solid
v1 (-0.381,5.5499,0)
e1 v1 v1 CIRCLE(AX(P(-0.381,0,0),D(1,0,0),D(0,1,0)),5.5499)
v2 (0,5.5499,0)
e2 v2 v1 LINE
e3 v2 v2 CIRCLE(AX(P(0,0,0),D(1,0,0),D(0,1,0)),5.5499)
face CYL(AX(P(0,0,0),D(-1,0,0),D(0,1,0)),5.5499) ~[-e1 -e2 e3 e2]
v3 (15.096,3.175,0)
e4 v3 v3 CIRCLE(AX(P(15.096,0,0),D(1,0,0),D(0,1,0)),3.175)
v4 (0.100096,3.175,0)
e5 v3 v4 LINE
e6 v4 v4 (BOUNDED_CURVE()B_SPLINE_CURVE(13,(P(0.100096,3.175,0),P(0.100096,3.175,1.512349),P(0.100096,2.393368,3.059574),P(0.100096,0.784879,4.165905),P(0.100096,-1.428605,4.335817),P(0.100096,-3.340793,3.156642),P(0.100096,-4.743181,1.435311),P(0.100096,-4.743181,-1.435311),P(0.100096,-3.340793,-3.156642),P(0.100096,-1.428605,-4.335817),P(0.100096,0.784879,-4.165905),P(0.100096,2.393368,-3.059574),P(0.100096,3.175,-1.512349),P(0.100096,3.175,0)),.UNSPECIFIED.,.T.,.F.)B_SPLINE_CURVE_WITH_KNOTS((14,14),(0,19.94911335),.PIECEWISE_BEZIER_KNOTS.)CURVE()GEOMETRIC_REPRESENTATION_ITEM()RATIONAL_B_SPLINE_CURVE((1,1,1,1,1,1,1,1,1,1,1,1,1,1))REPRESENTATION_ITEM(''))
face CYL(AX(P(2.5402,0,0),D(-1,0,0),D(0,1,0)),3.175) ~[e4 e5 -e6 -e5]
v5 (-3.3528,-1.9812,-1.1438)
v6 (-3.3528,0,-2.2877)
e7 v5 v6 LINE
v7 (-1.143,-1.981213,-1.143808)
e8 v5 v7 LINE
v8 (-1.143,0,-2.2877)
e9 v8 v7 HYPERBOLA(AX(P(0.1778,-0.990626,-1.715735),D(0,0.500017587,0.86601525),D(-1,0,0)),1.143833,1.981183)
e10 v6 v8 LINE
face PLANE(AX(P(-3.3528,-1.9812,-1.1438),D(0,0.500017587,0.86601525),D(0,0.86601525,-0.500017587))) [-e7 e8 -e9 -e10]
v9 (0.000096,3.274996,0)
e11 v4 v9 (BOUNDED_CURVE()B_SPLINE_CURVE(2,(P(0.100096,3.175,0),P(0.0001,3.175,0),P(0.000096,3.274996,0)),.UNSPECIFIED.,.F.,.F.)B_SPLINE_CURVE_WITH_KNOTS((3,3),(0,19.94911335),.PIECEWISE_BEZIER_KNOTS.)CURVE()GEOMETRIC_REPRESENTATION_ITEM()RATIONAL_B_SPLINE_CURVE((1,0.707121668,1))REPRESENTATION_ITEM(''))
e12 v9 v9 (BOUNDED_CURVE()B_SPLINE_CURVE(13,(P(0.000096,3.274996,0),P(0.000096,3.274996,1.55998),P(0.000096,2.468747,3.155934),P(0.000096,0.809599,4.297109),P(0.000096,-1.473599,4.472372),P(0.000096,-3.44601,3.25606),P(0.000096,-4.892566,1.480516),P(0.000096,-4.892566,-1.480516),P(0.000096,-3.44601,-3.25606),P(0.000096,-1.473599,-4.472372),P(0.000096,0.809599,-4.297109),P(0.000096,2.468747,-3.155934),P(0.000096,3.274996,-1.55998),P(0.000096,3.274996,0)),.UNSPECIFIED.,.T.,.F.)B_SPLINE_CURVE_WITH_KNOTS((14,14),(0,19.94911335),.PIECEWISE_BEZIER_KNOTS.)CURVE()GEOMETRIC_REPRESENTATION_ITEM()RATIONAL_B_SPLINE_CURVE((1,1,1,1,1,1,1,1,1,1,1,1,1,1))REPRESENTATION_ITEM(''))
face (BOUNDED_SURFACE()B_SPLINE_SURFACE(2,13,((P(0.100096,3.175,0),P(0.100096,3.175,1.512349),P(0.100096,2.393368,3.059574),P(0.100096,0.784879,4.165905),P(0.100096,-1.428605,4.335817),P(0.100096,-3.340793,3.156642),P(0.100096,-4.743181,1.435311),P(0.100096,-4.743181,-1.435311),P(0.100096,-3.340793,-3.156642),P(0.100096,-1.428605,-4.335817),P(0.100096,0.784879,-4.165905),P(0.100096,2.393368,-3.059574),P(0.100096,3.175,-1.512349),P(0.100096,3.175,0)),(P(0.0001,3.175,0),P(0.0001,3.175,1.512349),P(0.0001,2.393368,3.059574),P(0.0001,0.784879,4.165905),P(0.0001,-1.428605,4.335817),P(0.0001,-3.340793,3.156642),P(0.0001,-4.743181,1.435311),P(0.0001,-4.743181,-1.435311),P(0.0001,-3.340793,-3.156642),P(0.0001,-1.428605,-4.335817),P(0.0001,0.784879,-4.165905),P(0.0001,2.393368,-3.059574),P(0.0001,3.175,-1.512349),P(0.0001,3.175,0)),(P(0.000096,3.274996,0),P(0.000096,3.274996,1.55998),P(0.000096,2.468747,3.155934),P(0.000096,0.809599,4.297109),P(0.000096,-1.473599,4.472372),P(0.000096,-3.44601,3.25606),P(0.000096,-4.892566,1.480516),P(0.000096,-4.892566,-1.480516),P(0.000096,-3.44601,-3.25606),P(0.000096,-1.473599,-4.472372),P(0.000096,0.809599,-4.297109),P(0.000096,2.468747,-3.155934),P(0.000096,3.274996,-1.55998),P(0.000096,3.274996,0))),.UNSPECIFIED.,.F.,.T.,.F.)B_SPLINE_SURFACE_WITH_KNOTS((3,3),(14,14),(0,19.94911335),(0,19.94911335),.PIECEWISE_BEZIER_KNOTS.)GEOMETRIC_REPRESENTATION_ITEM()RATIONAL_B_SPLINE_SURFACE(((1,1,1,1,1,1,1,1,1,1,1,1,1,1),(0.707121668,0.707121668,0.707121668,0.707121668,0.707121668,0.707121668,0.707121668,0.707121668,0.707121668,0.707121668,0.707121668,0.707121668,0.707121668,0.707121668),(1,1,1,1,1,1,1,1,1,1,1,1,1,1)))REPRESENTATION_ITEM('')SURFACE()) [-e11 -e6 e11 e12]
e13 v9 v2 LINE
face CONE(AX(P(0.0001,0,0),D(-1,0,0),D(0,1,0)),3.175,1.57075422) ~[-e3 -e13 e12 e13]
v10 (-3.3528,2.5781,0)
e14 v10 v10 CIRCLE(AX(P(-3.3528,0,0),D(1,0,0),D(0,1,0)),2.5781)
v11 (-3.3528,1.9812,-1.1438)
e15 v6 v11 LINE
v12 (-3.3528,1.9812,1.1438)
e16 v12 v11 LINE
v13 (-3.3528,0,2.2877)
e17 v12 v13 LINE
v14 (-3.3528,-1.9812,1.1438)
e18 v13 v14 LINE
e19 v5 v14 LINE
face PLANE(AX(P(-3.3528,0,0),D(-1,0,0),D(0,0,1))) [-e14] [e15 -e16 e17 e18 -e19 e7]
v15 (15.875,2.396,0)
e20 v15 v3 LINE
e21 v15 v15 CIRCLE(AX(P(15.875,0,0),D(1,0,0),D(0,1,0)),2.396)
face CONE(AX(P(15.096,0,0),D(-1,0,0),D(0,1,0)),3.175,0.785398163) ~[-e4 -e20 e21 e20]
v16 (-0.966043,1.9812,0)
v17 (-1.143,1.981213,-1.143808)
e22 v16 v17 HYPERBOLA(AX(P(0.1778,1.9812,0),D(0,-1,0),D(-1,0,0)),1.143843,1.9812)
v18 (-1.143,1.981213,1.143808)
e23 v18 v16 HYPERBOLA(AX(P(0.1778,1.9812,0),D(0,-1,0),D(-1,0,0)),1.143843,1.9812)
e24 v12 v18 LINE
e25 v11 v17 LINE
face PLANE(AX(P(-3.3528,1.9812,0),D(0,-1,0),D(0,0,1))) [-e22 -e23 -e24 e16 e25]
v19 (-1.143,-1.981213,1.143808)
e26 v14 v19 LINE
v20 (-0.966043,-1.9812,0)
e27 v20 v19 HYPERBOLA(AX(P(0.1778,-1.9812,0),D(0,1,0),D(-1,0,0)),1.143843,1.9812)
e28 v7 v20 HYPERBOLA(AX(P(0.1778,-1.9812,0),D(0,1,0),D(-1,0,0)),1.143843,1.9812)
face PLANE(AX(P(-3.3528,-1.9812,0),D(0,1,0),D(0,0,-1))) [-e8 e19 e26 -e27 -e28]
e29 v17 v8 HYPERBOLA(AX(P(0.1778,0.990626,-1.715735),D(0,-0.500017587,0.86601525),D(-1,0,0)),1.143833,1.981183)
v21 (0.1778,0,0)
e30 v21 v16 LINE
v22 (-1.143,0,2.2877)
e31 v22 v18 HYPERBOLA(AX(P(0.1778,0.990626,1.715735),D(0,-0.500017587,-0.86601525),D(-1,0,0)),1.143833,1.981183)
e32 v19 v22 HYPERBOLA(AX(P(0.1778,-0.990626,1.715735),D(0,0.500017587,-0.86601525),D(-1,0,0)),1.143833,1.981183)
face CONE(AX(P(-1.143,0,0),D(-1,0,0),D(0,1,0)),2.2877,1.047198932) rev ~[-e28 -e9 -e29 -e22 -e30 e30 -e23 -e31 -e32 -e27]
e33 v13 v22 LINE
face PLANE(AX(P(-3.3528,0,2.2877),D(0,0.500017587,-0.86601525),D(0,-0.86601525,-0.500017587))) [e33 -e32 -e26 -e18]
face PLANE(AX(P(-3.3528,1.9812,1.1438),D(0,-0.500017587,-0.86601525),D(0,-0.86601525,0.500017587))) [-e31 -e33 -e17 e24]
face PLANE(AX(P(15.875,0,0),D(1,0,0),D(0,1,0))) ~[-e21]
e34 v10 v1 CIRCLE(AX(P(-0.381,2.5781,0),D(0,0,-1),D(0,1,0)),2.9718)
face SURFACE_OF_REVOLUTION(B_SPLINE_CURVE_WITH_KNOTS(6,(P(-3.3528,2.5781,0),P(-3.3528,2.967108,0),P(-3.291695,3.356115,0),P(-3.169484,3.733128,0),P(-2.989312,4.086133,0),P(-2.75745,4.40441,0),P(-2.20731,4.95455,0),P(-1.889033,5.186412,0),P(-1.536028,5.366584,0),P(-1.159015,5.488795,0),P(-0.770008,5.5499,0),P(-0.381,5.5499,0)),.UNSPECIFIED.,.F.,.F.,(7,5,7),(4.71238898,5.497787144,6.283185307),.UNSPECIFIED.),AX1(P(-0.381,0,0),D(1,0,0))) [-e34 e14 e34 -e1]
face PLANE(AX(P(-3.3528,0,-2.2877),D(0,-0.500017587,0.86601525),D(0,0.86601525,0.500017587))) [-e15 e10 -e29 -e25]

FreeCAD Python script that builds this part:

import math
import FreeCAD as App
import Part
import Sketcher

V = App.Vector
Q = App.Units.Quantity


def edges_at(feature, points):
    """Names of the edges that pass closest to the given points."""
    edges = feature.Shape.Edges
    near = lambda p: min(range(len(edges)), key=lambda i: edges[i].distToShape(Part.Vertex(*p))[0])
    return sorted({f"Edge{near(p) + 1}" for p in points})

doc = App.newDocument("Part")
body = doc.addObject("PartDesign::Body", "Body")

# Sketch on XY plane
sketch1 = body.newObject("Sketcher::SketchObject", "Sketch")
sketch1.AttachmentSupport = (doc.getObject("XY_Plane"), [""])
sketch1.MapMode = "FlatFace"
sketch1.addGeometry(Part.LineSegment(V(0.1778, 0, 0), V(15.875, 0, 0)), False)
sketch1.addGeometry(Part.LineSegment(V(15.875, 0, 0), V(15.875, 3.175, 0)), False)
sketch1.addGeometry(Part.LineSegment(V(15.875, 3.175, 0), V(0.0001, 3.175, 0)), False)
sketch1.addGeometry(Part.LineSegment(V(0.0001, 3.175, 0), V(0, 5.5499, 0)), False)
sketch1.addGeometry(Part.LineSegment(V(0, 5.5499, 0), V(-3.3528, 5.5499, 0)), False)
sketch1.addGeometry(Part.LineSegment(V(-3.3528, 5.5499, 0), V(-3.3528, 2.2877, 0)), False)
sketch1.addGeometry(Part.LineSegment(V(-3.3528, 2.2877, 0), V(-1.143, 2.2877, 0)), False)
sketch1.addGeometry(Part.LineSegment(V(-1.143, 2.2877, 0), V(0.1778, 0, 0)), False)
sketch1.addConstraint(Sketcher.Constraint("Coincident", 0, 2, 1, 1))
sketch1.addConstraint(Sketcher.Constraint("Coincident", 1, 2, 2, 1))
sketch1.addConstraint(Sketcher.Constraint("Coincident", 2, 2, 3, 1))
sketch1.addConstraint(Sketcher.Constraint("Coincident", 3, 2, 4, 1))
sketch1.addConstraint(Sketcher.Constraint("Coincident", 4, 2, 5, 1))
sketch1.addConstraint(Sketcher.Constraint("Coincident", 5, 2, 6, 1))
sketch1.addConstraint(Sketcher.Constraint("Coincident", 6, 2, 7, 1))
sketch1.addConstraint(Sketcher.Constraint("Coincident", 7, 2, 0, 1))
sketch1.addConstraint(Sketcher.Constraint("Horizontal", 0))
sketch1.addConstraint(Sketcher.Constraint("Vertical", 1))
sketch1.addConstraint(Sketcher.Constraint("Horizontal", 2))
sketch1.addConstraint(Sketcher.Constraint("Vertical", 3))
sketch1.addConstraint(Sketcher.Constraint("Horizontal", 4))
sketch1.addConstraint(Sketcher.Constraint("Vertical", 5))
sketch1.addConstraint(Sketcher.Constraint("Horizontal", 6))
sketch1.addConstraint(Sketcher.Constraint("PointOnObject", 0, 2, -1))
sketch1.addConstraint(Sketcher.Constraint("PointOnObject", 2, 2, -2))
sketch1.addConstraint(Sketcher.Constraint("Angle", 7, Q("-60 deg")))
sketch1.addConstraint(Sketcher.Constraint("DistanceX", 2, 2, 2, 1, Q("0.625 in")))
sketch1.addConstraint(Sketcher.Constraint("DistanceX", 4, 2, 4, 1, Q("0.132 in")))
sketch1.addConstraint(Sketcher.Constraint("DistanceX", 6, 1, 6, 2, Q("0.087 in")))
sketch1.addConstraint(Sketcher.Constraint("DistanceX", 0, 1, 0, 2, Q("0.618 in")))
sketch1.addConstraint(Sketcher.Constraint("DistanceY", 1, 1, 1, 2, Q("0.125 in")))
sketch1.addConstraint(Sketcher.Constraint("DistanceY", 3, 1, 3, 2, Q("0.0935 in")))
revolution = body.newObject("PartDesign::Revolution", "Revolution")
revolution.Profile = sketch1
revolution.ReferenceAxis = (sketch1, ["H_Axis"])
revolution.Angle = 360

# Sketch on YZ plane
sketch2 = body.newObject("Sketcher::SketchObject", "Sketch001")
sketch2.AttachmentSupport = (doc.getObject("YZ_Plane"), [""])
sketch2.MapMode = "FlatFace"
sketch2.AttachmentOffset = App.Placement(V(0, 0, -0.132 * 25.4), App.Rotation())
sketch2.addGeometry(Part.LineSegment(V(1.9812, 1.1438, 0), V(0, 2.2877, 0)), False)
sketch2.addGeometry(Part.ArcOfCircle(Part.Circle(V(0, 0, 0), V(0, 0, 1), 2.2877), math.radians(29.998995), math.radians(90)), False)
sketch2.addGeometry(Part.ArcOfCircle(Part.Circle(V(0, 0, 0), V(0, 0, 1), 2.2877), math.radians(90), math.radians(150.001005)), False)
sketch2.addGeometry(Part.LineSegment(V(0, 2.2877, 0), V(-1.9812, 1.1438, 0)), False)
sketch2.addGeometry(Part.ArcOfCircle(Part.Circle(V(0, 0, 0), V(0, 0, 1), 2.2877), math.radians(-29.998995), math.radians(29.998995)), False)
sketch2.addGeometry(Part.LineSegment(V(1.9812, 1.1438, 0), V(1.9812, -1.1438, 0)), False)
sketch2.addGeometry(Part.LineSegment(V(-1.9812, 1.1438, 0), V(-1.9812, -1.1438, 0)), False)
sketch2.addGeometry(Part.ArcOfCircle(Part.Circle(V(0, 0, 0), V(0, 0, 1), 2.2877), math.radians(150.001005), math.radians(209.998995)), False)
sketch2.addGeometry(Part.LineSegment(V(-1.9812, -1.1438, 0), V(0, -2.2877, 0)), False)
sketch2.addGeometry(Part.ArcOfCircle(Part.Circle(V(0, 0, 0), V(0, 0, 1), 2.2877), math.radians(-150.001005), math.radians(-90)), False)
sketch2.addGeometry(Part.ArcOfCircle(Part.Circle(V(0, 0, 0), V(0, 0, 1), 2.2877), math.radians(-90), math.radians(-29.998995)), False)
sketch2.addGeometry(Part.LineSegment(V(0, -2.2877, 0), V(1.9812, -1.1438, 0)), False)
sketch2.addConstraint(Sketcher.Constraint("Coincident", 0, 1, 1, 1))
sketch2.addConstraint(Sketcher.Constraint("Coincident", 1, 2, 0, 2))
sketch2.addConstraint(Sketcher.Constraint("Coincident", 2, 1, 3, 1))
sketch2.addConstraint(Sketcher.Constraint("Coincident", 3, 2, 2, 2))
sketch2.addConstraint(Sketcher.Constraint("Coincident", 4, 1, 5, 2))
sketch2.addConstraint(Sketcher.Constraint("Coincident", 5, 1, 4, 2))
sketch2.addConstraint(Sketcher.Constraint("Coincident", 6, 1, 7, 1))
sketch2.addConstraint(Sketcher.Constraint("Coincident", 7, 2, 6, 2))
sketch2.addConstraint(Sketcher.Constraint("Coincident", 8, 1, 9, 1))
sketch2.addConstraint(Sketcher.Constraint("Coincident", 9, 2, 8, 2))
sketch2.addConstraint(Sketcher.Constraint("Coincident", 10, 1, 11, 1))
sketch2.addConstraint(Sketcher.Constraint("Coincident", 11, 2, 10, 2))
sketch2.addConstraint(Sketcher.Constraint("Vertical", 5))
sketch2.addConstraint(Sketcher.Constraint("Vertical", 6))
sketch2.addConstraint(Sketcher.Constraint("Coincident", 1, 3, -1, 1))
sketch2.addConstraint(Sketcher.Constraint("Coincident", 2, 3, -1, 1))
sketch2.addConstraint(Sketcher.Constraint("Coincident", 4, 3, -1, 1))
sketch2.addConstraint(Sketcher.Constraint("Coincident", 7, 3, -1, 1))
sketch2.addConstraint(Sketcher.Constraint("Coincident", 9, 3, -1, 1))
sketch2.addConstraint(Sketcher.Constraint("Coincident", 10, 3, -1, 1))
sketch2.addConstraint(Sketcher.Constraint("Coincident", 2, 1, 1, 2))
sketch2.addConstraint(Sketcher.Constraint("Coincident", 5, 1, 0, 1))
sketch2.addConstraint(Sketcher.Constraint("Coincident", 6, 1, 3, 2))
sketch2.addConstraint(Sketcher.Constraint("Coincident", 8, 1, 7, 2))
sketch2.addConstraint(Sketcher.Constraint("Coincident", 10, 1, 9, 2))
sketch2.addConstraint(Sketcher.Constraint("PointOnObject", 1, 2, -2))
sketch2.addConstraint(Sketcher.Constraint("PointOnObject", 9, 2, -2))
sketch2.addConstraint(Sketcher.Constraint("Parallel", 0, 8))
sketch2.addConstraint(Sketcher.Constraint("Parallel", 3, 11))
sketch2.addConstraint(Sketcher.Constraint("Angle", 0, Q("149.9988 deg")))
sketch2.addConstraint(Sketcher.Constraint("Radius", 1, Q("2.2877 mm")))
pad1 = body.newObject("PartDesign::Pad", "Pad")
pad1.Profile = sketch2
pad1.Length = 2.3868
doc.recompute()

fillet = body.newObject("PartDesign::Fillet", "Fillet")
fillet.Base = (pad1, edges_at(pad1, [(-3.353, -5.55, 0)]))
fillet.Radius = Q("0.117 in")
doc.recompute()

chamfer = body.newObject("PartDesign::Chamfer", "Chamfer")
chamfer.Base = (fillet, edges_at(fillet, [(15.875, -3.175, 0)]))
chamfer.ChamferType = "Two distances"
chamfer.Size = 0.779
chamfer.Size2 = 0.779
doc.recompute()

fillet2 = body.newObject("PartDesign::Fillet", "Fillet001")
fillet2.Base = (chamfer, edges_at(chamfer, [(0, -3.175, 0)]))
fillet2.Radius = 0.1

doc.recompute()
